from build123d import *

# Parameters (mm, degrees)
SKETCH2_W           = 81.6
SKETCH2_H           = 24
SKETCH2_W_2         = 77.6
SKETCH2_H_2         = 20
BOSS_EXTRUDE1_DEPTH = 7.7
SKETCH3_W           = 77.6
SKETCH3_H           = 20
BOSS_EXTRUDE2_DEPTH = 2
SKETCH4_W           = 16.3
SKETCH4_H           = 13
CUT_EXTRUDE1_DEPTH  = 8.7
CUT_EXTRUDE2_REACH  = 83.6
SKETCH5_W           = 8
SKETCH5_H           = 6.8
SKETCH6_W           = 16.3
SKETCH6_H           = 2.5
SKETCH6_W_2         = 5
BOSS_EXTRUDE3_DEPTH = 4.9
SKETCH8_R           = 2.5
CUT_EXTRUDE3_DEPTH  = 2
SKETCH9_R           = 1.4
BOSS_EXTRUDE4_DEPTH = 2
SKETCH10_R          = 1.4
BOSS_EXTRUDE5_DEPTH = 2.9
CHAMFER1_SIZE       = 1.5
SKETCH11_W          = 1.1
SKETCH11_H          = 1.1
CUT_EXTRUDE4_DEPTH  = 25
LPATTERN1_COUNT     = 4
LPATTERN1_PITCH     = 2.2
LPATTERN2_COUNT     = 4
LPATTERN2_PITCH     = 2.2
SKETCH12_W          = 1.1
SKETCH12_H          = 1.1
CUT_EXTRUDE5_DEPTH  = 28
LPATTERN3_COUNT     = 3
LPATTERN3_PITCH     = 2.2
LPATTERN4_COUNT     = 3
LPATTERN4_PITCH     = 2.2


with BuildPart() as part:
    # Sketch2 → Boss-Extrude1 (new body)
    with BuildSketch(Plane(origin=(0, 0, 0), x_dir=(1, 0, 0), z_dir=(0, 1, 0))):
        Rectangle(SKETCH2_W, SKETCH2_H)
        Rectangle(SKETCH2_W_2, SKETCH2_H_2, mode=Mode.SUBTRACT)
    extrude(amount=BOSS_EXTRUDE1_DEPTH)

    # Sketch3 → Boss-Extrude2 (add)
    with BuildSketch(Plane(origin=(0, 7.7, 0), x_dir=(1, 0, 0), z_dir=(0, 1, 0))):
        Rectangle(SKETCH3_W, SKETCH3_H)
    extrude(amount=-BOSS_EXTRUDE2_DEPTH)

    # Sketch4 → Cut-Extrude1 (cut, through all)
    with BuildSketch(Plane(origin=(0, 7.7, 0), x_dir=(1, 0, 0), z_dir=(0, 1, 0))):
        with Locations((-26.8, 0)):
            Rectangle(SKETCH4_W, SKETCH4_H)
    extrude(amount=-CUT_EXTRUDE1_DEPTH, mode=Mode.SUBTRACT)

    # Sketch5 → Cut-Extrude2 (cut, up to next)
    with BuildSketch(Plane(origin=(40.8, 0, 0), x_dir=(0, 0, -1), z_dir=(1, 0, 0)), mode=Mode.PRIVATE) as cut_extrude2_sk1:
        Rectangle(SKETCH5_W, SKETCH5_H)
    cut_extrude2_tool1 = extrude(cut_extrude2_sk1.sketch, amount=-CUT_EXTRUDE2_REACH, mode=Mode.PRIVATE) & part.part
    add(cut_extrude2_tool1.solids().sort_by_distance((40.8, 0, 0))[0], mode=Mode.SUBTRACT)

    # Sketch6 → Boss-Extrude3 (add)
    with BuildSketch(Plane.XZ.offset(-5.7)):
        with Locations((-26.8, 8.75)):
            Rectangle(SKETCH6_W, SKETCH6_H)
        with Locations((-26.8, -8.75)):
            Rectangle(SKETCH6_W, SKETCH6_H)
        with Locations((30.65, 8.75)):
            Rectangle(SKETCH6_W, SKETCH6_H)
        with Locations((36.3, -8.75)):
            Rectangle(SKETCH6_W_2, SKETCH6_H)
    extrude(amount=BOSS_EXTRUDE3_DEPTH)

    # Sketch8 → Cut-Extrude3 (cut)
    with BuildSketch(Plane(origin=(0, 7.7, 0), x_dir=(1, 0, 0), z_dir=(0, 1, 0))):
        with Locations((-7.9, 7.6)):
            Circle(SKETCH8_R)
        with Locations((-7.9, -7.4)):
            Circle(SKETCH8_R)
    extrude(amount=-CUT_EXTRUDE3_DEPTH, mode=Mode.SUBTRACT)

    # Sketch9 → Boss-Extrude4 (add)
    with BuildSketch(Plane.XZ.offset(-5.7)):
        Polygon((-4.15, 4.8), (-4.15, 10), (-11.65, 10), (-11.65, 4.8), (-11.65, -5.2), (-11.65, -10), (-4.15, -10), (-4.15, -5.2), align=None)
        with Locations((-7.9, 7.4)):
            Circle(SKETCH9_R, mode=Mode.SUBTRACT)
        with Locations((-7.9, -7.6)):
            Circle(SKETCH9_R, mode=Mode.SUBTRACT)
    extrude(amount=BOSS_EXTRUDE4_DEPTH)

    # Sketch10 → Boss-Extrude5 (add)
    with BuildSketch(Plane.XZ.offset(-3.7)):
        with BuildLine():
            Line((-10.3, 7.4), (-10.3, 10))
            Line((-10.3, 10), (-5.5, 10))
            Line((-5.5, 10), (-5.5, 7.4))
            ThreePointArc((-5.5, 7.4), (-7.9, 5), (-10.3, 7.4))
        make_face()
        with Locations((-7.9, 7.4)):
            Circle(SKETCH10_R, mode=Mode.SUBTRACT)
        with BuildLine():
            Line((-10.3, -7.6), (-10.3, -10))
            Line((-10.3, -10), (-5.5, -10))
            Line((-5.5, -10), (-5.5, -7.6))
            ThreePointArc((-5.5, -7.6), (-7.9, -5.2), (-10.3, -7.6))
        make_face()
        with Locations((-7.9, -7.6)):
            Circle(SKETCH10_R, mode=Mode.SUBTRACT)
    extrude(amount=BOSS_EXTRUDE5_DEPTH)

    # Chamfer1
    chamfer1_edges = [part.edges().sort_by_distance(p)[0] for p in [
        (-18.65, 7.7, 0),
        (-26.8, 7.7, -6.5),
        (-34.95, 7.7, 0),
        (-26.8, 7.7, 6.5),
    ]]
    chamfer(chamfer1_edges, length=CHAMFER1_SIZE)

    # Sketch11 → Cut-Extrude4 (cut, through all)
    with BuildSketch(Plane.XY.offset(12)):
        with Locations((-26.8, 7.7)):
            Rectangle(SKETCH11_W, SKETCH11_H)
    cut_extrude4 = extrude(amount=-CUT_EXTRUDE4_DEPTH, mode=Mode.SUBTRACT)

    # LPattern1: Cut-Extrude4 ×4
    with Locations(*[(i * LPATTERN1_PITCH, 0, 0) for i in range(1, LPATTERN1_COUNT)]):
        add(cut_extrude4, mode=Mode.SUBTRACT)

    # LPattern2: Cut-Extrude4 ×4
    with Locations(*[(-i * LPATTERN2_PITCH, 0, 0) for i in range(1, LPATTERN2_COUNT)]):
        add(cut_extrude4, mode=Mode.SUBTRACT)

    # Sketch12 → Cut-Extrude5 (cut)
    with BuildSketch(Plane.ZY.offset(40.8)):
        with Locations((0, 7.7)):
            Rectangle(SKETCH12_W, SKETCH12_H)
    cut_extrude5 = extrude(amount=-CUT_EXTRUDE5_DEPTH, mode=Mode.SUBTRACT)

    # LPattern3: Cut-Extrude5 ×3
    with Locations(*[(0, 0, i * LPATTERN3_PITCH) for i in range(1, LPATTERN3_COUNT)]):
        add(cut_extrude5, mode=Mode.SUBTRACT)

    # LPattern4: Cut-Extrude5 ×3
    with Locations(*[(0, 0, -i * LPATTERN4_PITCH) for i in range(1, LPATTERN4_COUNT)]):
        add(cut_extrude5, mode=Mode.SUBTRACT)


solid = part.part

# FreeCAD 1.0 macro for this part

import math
import FreeCAD as App
import Part
import Sketcher
Q = App.Units.Quantity


def edges_at(feature, points):
    """Names of the edges that pass closest to the given points."""
    edges = feature.Shape.Edges
    near = lambda p: min(range(len(edges)), key=lambda i: edges[i].distToShape(Part.Vertex(*p))[0])
    return sorted({f"Edge{near(p) + 1}" for p in points})


def add_polygon(sketch, points):
    """Adds a closed chain of lines whose ends are joined by coincident constraints."""
    first, n = sketch.GeometryCount, len(points)
    for a, b in zip(points, points[1:] + points[:1]):
        sketch.addGeometry(Part.LineSegment(App.Vector(*a, 0), App.Vector(*b, 0)), False)
    for i in range(n):
        sketch.addConstraint(Sketcher.Constraint("Coincident", first + i, 2, first + (i + 1) % n, 1))

doc = App.newDocument("Part")
params = doc.addObject("Spreadsheet::Sheet", "Params")
for row, (alias, value) in enumerate([
    ("sketch1_height", "24 mm"),
    ("sketch1_height2", "20 mm"),
    ("sketch1_width", "81.6 mm"),
    ("sketch1_width2", "77.6 mm"),
    ("pad1_length", "7.7 mm"),
    ("sketch2_height", "20 mm"),
    ("sketch2_width", "77.6 mm"),
    ("pad2_length", "2 mm"),
    ("sketch3_height", "13 mm"),
    ("sketch3_width", "16.3 mm"),
    ("sketch4_height", "8 mm"),
    ("sketch4_width", "6.8 mm"),
    ("sketch5_width", "5 mm"),
    ("sketch5_width2", "16.3 mm"),
    ("sketch5_height", "2.5 mm"),
    ("pad3_length", "4.9 mm"),
    ("sketch6_diameter", "5 mm"),
    ("pocket3_length", "2 mm"),
    ("sketch7_diameter", "2.8 mm"),
    ("sketch7_height", "20 mm"),
    ("sketch7_width", "7.5 mm"),
    ("pad4_length", "2 mm"),
    ("sketch8_diameter", "2.8 mm"),
    ("sketch8_radius", "2.4 mm"),
    ("sketch8_height", "2.6 mm"),
    ("sketch8_height2", "2.4 mm"),
    ("pad5_length", "2.9 mm"),
    ("chamfer_size", "1.5 mm"),
    ("sketch9_width", "1.1 mm"),
    ("linearpattern_pitch", "2.2 mm"),
    ("linearpattern2_pitch", "2.2 mm"),
    ("sketch10_width", "1.1 mm"),
    ("pocket5_length", "28 mm"),
    ("linearpattern3_pitch", "2.2 mm"),
    ("linearpattern4_pitch", "2.2 mm"),
], start=1):
    params.set(f"A{row}", alias)
    params.set(f"B{row}", "=" + value)
    params.setAlias(f"B{row}", alias)

body = doc.addObject("PartDesign::Body", "Body")

sketch1 = body.newObject("Sketcher::SketchObject", "Sketch")
sketch1.AttachmentSupport = (doc.getObject("XZ_Plane"), [""])
sketch1.MapMode = "FlatFace"
add_polygon(sketch1, [(-41, -12), (-41, 12), (41, 12), (41, -12)])
add_polygon(sketch1, [(39, 10), (-39, 10), (-39, -10), (39, -10)])
sketch1.addConstraint(Sketcher.Constraint("Vertical", 0))
sketch1.addConstraint(Sketcher.Constraint("Horizontal", 1))
sketch1.addConstraint(Sketcher.Constraint("Vertical", 2))
sketch1.addConstraint(Sketcher.Constraint("Horizontal", 3))
sketch1.addConstraint(Sketcher.Constraint("Horizontal", 4))
sketch1.addConstraint(Sketcher.Constraint("Vertical", 5))
sketch1.addConstraint(Sketcher.Constraint("Horizontal", 6))
sketch1.addConstraint(Sketcher.Constraint("Vertical", 7))
sketch1.addConstraint(Sketcher.Constraint("Symmetric", 0, 2, 2, 2, -1, 1))
sketch1.addConstraint(Sketcher.Constraint("Symmetric", 4, 2, 6, 2, -1, 1))
sketch1.addConstraint(Sketcher.Constraint("DistanceY", 0, 1, 0, 2, Q("24 mm")))
sketch1.addConstraint(Sketcher.Constraint("DistanceY", 5, 2, 5, 1, Q("20 mm")))
sketch1.addConstraint(Sketcher.Constraint("DistanceX", 1, 1, 1, 2, Q("81.6 mm")))
sketch1.addConstraint(Sketcher.Constraint("DistanceX", 4, 2, 4, 1, Q("77.6 mm")))
sketch1.setExpression("Constraints[18]", "Params.sketch1_height")
sketch1.setExpression("Constraints[19]", "Params.sketch1_height2")
sketch1.setExpression("Constraints[20]", "Params.sketch1_width")
sketch1.setExpression("Constraints[21]", "Params.sketch1_width2")
pad1 = body.newObject("PartDesign::Pad", "Pad")
pad1.Profile = sketch1
pad1.setExpression("Length", "Params.pad1_length")
pad1.Reversed = True

sketch2 = body.newObject("Sketcher::SketchObject", "Sketch001")
sketch2.AttachmentSupport = (doc.getObject("XZ_Plane"), [""])
sketch2.MapMode = "FlatFace"
sketch2.AttachmentOffset = App.Placement(App.Vector(0, 0, -7.7), App.Rotation())
add_polygon(sketch2, [(-39, -10), (-39, 10), (39, 10), (39, -10)])
sketch2.addConstraint(Sketcher.Constraint("Vertical", 0))
sketch2.addConstraint(Sketcher.Constraint("Horizontal", 1))
sketch2.addConstraint(Sketcher.Constraint("Vertical", 2))
sketch2.addConstraint(Sketcher.Constraint("Horizontal", 3))
sketch2.addConstraint(Sketcher.Constraint("Symmetric", 0, 2, 2, 2, -1, 1))
sketch2.addConstraint(Sketcher.Constraint("DistanceY", 0, 1, 0, 2, Q("20 mm")))
sketch2.addConstraint(Sketcher.Constraint("DistanceX", 1, 1, 1, 2, Q("77.6 mm")))
sketch2.setExpression("Constraints[9]", "Params.sketch2_height")
sketch2.setExpression("Constraints[10]", "Params.sketch2_width")
pad2 = body.newObject("PartDesign::Pad", "Pad001")
pad2.Profile = sketch2
pad2.setExpression("Length", "Params.pad2_length")

sketch3 = body.newObject("Sketcher::SketchObject", "Sketch002")
sketch3.AttachmentSupport = (doc.getObject("XZ_Plane"), [""])
sketch3.MapMode = "FlatFace"
sketch3.AttachmentOffset = App.Placement(App.Vector(0, 0, -7.7), App.Rotation())
add_polygon(sketch3, [(-35, -6), (-35, 6), (-19, 6), (-19, -6)])
sketch3.addConstraint(Sketcher.Constraint("Vertical", 0))
sketch3.addConstraint(Sketcher.Constraint("Horizontal", 1))
sketch3.addConstraint(Sketcher.Constraint("Vertical", 2))
sketch3.addConstraint(Sketcher.Constraint("Horizontal", 3))
sketch3.addConstraint(Sketcher.Constraint("DistanceY", 0, 1, 0, 2, Q("13 mm")))
sketch3.addConstraint(Sketcher.Constraint("DistanceX", 1, 1, 1, 2, Q("16.3 mm")))
sketch3.addConstraint(Sketcher.Constraint("DistanceY", -1, 1, 0, 2, Q("6.5 mm")))
sketch3.addConstraint(Sketcher.Constraint("DistanceX", 0, 2, -1, 1, Q("34.95 mm")))
sketch3.setExpression("Constraints[8]", "Params.sketch3_height")
sketch3.setExpression("Constraints[9]", "Params.sketch3_width")
pocket1 = body.newObject("PartDesign::Pocket", "Pocket")
pocket1.Profile = sketch3
pocket1.Type = "ThroughAll"
pocket1.Reversed = True

sketch4 = body.newObject("Sketcher::SketchObject", "Sketch003")
sketch4.AttachmentSupport = (doc.getObject("YZ_Plane"), [""])
sketch4.MapMode = "FlatFace"
sketch4.AttachmentOffset = App.Placement(App.Vector(0, 0, 40.8), App.Rotation())
add_polygon(sketch4, [(3, 4), (-3, 4), (-3, -4), (3, -4)])
sketch4.addConstraint(Sketcher.Constraint("Horizontal", 0))
sketch4.addConstraint(Sketcher.Constraint("Vertical", 1))
sketch4.addConstraint(Sketcher.Constraint("Horizontal", 2))
sketch4.addConstraint(Sketcher.Constraint("Vertical", 3))
sketch4.addConstraint(Sketcher.Constraint("Symmetric", 0, 2, 2, 2, -1, 1))
sketch4.addConstraint(Sketcher.Constraint("DistanceY", 1, 2, 1, 1, Q("8 mm")))
sketch4.addConstraint(Sketcher.Constraint("DistanceX", 0, 2, 0, 1, Q("6.8 mm")))
sketch4.setExpression("Constraints[9]", "Params.sketch4_height")
sketch4.setExpression("Constraints[10]", "Params.sketch4_width")
pocket2 = body.newObject("PartDesign::Pocket", "Pocket001")
pocket2.Profile = sketch4
pocket2.Type = "UpToFirst"

sketch5 = body.newObject("Sketcher::SketchObject", "Sketch004")
sketch5.AttachmentSupport = (doc.getObject("XZ_Plane"), [""])
sketch5.MapMode = "FlatFace"
sketch5.AttachmentOffset = App.Placement(App.Vector(0, 0, -5.7), App.Rotation())
add_polygon(sketch5, [(-35, 10), (-35, 7.5), (-18.6, 7.5), (-18.6, 10)])
add_polygon(sketch5, [(-35, -7.5), (-35, -10), (-18.6, -10), (-18.6, -7.5)])
add_polygon(sketch5, [(22.5, 10), (22.5, 7.5), (38.8, 7.5), (38.8, 10)])
add_polygon(sketch5, [(33.8, -7.5), (33.8, -10), (38.8, -10), (38.8, -7.5)])
sketch5.addConstraint(Sketcher.Constraint("Vertical", 0))
sketch5.addConstraint(Sketcher.Constraint("Horizontal", 1))
sketch5.addConstraint(Sketcher.Constraint("Vertical", 2))
sketch5.addConstraint(Sketcher.Constraint("Horizontal", 3))
sketch5.addConstraint(Sketcher.Constraint("Vertical", 4))
sketch5.addConstraint(Sketcher.Constraint("Horizontal", 5))
sketch5.addConstraint(Sketcher.Constraint("Vertical", 6))
sketch5.addConstraint(Sketcher.Constraint("Horizontal", 7))
sketch5.addConstraint(Sketcher.Constraint("Vertical", 8))
sketch5.addConstraint(Sketcher.Constraint("Horizontal", 9))
sketch5.addConstraint(Sketcher.Constraint("Vertical", 10))
sketch5.addConstraint(Sketcher.Constraint("Horizontal", 11))
sketch5.addConstraint(Sketcher.Constraint("Vertical", 12))
sketch5.addConstraint(Sketcher.Constraint("Horizontal", 13))
sketch5.addConstraint(Sketcher.Constraint("Vertical", 14))
sketch5.addConstraint(Sketcher.Constraint("Horizontal", 15))
sketch5.addConstraint(Sketcher.Constraint("Symmetric", 3, 2, 4, 2, -1))
sketch5.addConstraint(Sketcher.Constraint("Symmetric", 1, 2, 6, 2, -1))
sketch5.addConstraint(Sketcher.Constraint("Symmetric", 10, 2, 13, 2, -1))
sketch5.addConstraint(Sketcher.Constraint("Horizontal", 1, 2, 8, 2))
sketch5.addConstraint(Sketcher.Constraint("Horizontal", 3, 2, 10, 2))
sketch5.addConstraint(Sketcher.Constraint("Horizontal", 7, 2, 14, 2))
sketch5.addConstraint(Sketcher.Constraint("Equal", 7, 9))
sketch5.addConstraint(Sketcher.Constraint("DistanceX", 13, 1, 13, 2, Q("5 mm")))
sketch5.addConstraint(Sketcher.Constraint("DistanceX", 1, 1, 1, 2, Q("16.3 mm")))
sketch5.addConstraint(Sketcher.Constraint("DistanceY", 0, 2, 0, 1, Q("2.5 mm")))
sketch5.addConstraint(Sketcher.Constraint("DistanceY", -1, 1, 2, 2, Q("10 mm")))
sketch5.addConstraint(Sketcher.Constraint("DistanceX", -1, 1, 8, 2, Q("22.5 mm")))
sketch5.addConstraint(Sketcher.Constraint("DistanceX", 0, 2, -1, 1, Q("34.95 mm")))
sketch5.setExpression("Constraints[39]", "Params.sketch5_width")
sketch5.setExpression("Constraints[40]", "Params.sketch5_width2")
sketch5.setExpression("Constraints[41]", "Params.sketch5_height")
pad3 = body.newObject("PartDesign::Pad", "Pad002")
pad3.Profile = sketch5
pad3.setExpression("Length", "Params.pad3_length")

sketch6 = body.newObject("Sketcher::SketchObject", "Sketch005")
sketch6.AttachmentSupport = (doc.getObject("XZ_Plane"), [""])
sketch6.MapMode = "FlatFace"
sketch6.AttachmentOffset = App.Placement(App.Vector(0, 0, -7.7), App.Rotation())
sketch6.addGeometry(Part.Circle(App.Vector(-7.9, -7.6, 0), App.Vector(0, 0, 1), 2.5), False)
sketch6.addGeometry(Part.Circle(App.Vector(-7.9, 7.4, 0), App.Vector(0, 0, 1), 2.5), False)
sketch6.addConstraint(Sketcher.Constraint("Equal", 0, 1))
sketch6.addConstraint(Sketcher.Constraint("Vertical", 0, 3, 1, 3))
sketch6.addConstraint(Sketcher.Constraint("Diameter", 0, Q("5 mm")))
sketch6.addConstraint(Sketcher.Constraint("DistanceY", 0, 3, 1, 3, Q("15 mm")))
sketch6.addConstraint(Sketcher.Constraint("DistanceX", 0, 3, -1, 1, Q("7.9 mm")))
sketch6.addConstraint(Sketcher.Constraint("DistanceY", 0, 3, -1, 1, Q("7.6 mm")))
sketch6.setExpression("Constraints[2]", "Params.sketch6_diameter")
pocket3 = body.newObject("PartDesign::Pocket", "Pocket002")
pocket3.Profile = sketch6
pocket3.setExpression("Length", "Params.pocket3_length")
pocket3.Reversed = True

sketch7 = body.newObject("Sketcher::SketchObject", "Sketch006")
sketch7.AttachmentSupport = (doc.getObject("XZ_Plane"), [""])
sketch7.MapMode = "FlatFace"
sketch7.AttachmentOffset = App.Placement(App.Vector(0, 0, -5.7), App.Rotation())
add_polygon(sketch7, [(-4.2, 10), (-11.7, 10), (-11.7, -10), (-4.2, -10)])
sketch7.addGeometry(Part.Circle(App.Vector(-7.9, -7.6, 0), App.Vector(0, 0, 1), 1.4), False)
sketch7.addGeometry(Part.Circle(App.Vector(-7.9, 7.4, 0), App.Vector(0, 0, 1), 1.4), False)
sketch7.addConstraint(Sketcher.Constraint("Horizontal", 0))
sketch7.addConstraint(Sketcher.Constraint("Vertical", 1))
sketch7.addConstraint(Sketcher.Constraint("Horizontal", 2))
sketch7.addConstraint(Sketcher.Constraint("Vertical", 3))
sketch7.addConstraint(Sketcher.Constraint("Equal", 4, 5))
sketch7.addConstraint(Sketcher.Constraint("Vertical", 4, 3, 5, 3))
sketch7.addConstraint(Sketcher.Constraint("Diameter", 4, Q("2.8 mm")))
sketch7.addConstraint(Sketcher.Constraint("DistanceY", 1, 2, 1, 1, Q("20 mm")))
sketch7.addConstraint(Sketcher.Constraint("DistanceX", 0, 2, 0, 1, Q("7.5 mm")))
sketch7.addConstraint(Sketcher.Constraint("DistanceY", -1, 1, 0, 2, Q("10 mm")))
sketch7.addConstraint(Sketcher.Constraint("DistanceY", 4, 3, 5, 3, Q("15 mm")))
sketch7.addConstraint(Sketcher.Constraint("DistanceX", 4, 3, -1, 1, Q("7.9 mm")))
sketch7.addConstraint(Sketcher.Constraint("DistanceY", 4, 3, -1, 1, Q("7.6 mm")))
sketch7.addConstraint(Sketcher.Constraint("DistanceX", 0, 2, -1, 1, Q("11.65 mm")))
sketch7.setExpression("Constraints[10]", "Params.sketch7_diameter")
sketch7.setExpression("Constraints[11]", "Params.sketch7_height")
sketch7.setExpression("Constraints[12]", "Params.sketch7_width")
pad4 = body.newObject("PartDesign::Pad", "Pad003")
pad4.Profile = sketch7
pad4.setExpression("Length", "Params.pad4_length")

sketch8 = body.newObject("Sketcher::SketchObject", "Sketch007")
sketch8.AttachmentSupport = (doc.getObject("XZ_Plane"), [""])
sketch8.MapMode = "FlatFace"
sketch8.AttachmentOffset = App.Placement(App.Vector(0, 0, -3.7), App.Rotation())
sketch8.addGeometry(Part.LineSegment(App.Vector(-10.3, 10, 0), App.Vector(-10.3, 7.4, 0)), False)
sketch8.addGeometry(Part.ArcOfCircle(Part.Circle(App.Vector(-7.9, 7.4, 0), App.Vector(0, 0, 1), 2.4), math.radians(180), math.radians(360)), False)
sketch8.addGeometry(Part.LineSegment(App.Vector(-5.5, 7.4, 0), App.Vector(-5.5, 10, 0)), False)
sketch8.addGeometry(Part.LineSegment(App.Vector(-5.5, 10, 0), App.Vector(-10.3, 10, 0)), False)
sketch8.addGeometry(Part.Circle(App.Vector(-7.9, 7.4, 0), App.Vector(0, 0, 1), 1.4), False)
sketch8.addGeometry(Part.LineSegment(App.Vector(-10.3, -7.6, 0), App.Vector(-10.3, -10, 0)), False)
sketch8.addGeometry(Part.LineSegment(App.Vector(-10.3, -10, 0), App.Vector(-5.5, -10, 0)), False)
sketch8.addGeometry(Part.LineSegment(App.Vector(-5.5, -10, 0), App.Vector(-5.5, -7.6, 0)), False)
sketch8.addGeometry(Part.ArcOfCircle(Part.Circle(App.Vector(-7.9, -7.6, 0), App.Vector(0, 0, 1), 2.4), math.radians(0), math.radians(180)), False)
sketch8.addGeometry(Part.Circle(App.Vector(-7.9, -7.6, 0), App.Vector(0, 0, 1), 1.4), False)
sketch8.addConstraint(Sketcher.Constraint("Tangent", 0, 2, 1, 1))
sketch8.addConstraint(Sketcher.Constraint("Tangent", 1, 2, 2, 1))
sketch8.addConstraint(Sketcher.Constraint("Coincident", 2, 2, 3, 1))
sketch8.addConstraint(Sketcher.Constraint("Coincident", 3, 2, 0, 1))
sketch8.addConstraint(Sketcher.Constraint("Coincident", 5, 2, 6, 1))
sketch8.addConstraint(Sketcher.Constraint("Coincident", 6, 2, 7, 1))
sketch8.addConstraint(Sketcher.Constraint("Tangent", 7, 2, 8, 1))
sketch8.addConstraint(Sketcher.Constraint("Tangent", 8, 2, 5, 1))
sketch8.addConstraint(Sketcher.Constraint("Vertical", 0))
sketch8.addConstraint(Sketcher.Constraint("Vertical", 2))
sketch8.addConstraint(Sketcher.Constraint("Horizontal", 3))
sketch8.addConstraint(Sketcher.Constraint("Vertical", 5))
sketch8.addConstraint(Sketcher.Constraint("Horizontal", 6))
sketch8.addConstraint(Sketcher.Constraint("Vertical", 7))
sketch8.addConstraint(Sketcher.Constraint("Coincident", 4, 3, 1, 3))
sketch8.addConstraint(Sketcher.Constraint("Coincident", 9, 3, 8, 3))
sketch8.addConstraint(Sketcher.Constraint("Equal", 1, 8))
sketch8.addConstraint(Sketcher.Constraint("Equal", 4, 9))
sketch8.addConstraint(Sketcher.Constraint("Symmetric", 3, 2, 5, 2, -1))
sketch8.addConstraint(Sketcher.Constraint("Diameter", 4, Q("2.8 mm")))
sketch8.addConstraint(Sketcher.Constraint("Radius", 1, Q("2.4 mm")))
sketch8.addConstraint(Sketcher.Constraint("DistanceY", 0, 2, 0, 1, Q("2.6 mm")))
sketch8.addConstraint(Sketcher.Constraint("DistanceY", 5, 2, 5, 1, Q("2.4 mm")))
sketch8.addConstraint(Sketcher.Constraint("DistanceY", -1, 1, 2, 2, Q("10 mm")))
sketch8.addConstraint(Sketcher.Constraint("DistanceX", 1, 3, -1, 1, Q("7.9 mm")))
sketch8.setExpression("Constraints[19]", "Params.sketch8_diameter")
sketch8.setExpression("Constraints[20]", "Params.sketch8_radius")
sketch8.setExpression("Constraints[21]", "Params.sketch8_height")
sketch8.setExpression("Constraints[22]", "Params.sketch8_height2")
pad5 = body.newObject("PartDesign::Pad", "Pad004")
pad5.Profile = sketch8
pad5.setExpression("Length", "Params.pad5_length")
doc.recompute()

chamfer = body.newObject("PartDesign::Chamfer", "Chamfer")
chamfer.Base = (pad5, edges_at(pad5, [
    (-18.65, 7.7, 0),
    (-26.8, 7.7, -6.5),
    (-34.95, 7.7, 0),
    (-26.8, 7.7, 6.5),
]))
chamfer.setExpression("Size", "Params.chamfer_size")

sketch9 = body.newObject("Sketcher::SketchObject", "Sketch008")
sketch9.AttachmentSupport = (doc.getObject("XY_Plane"), [""])
sketch9.MapMode = "FlatFace"
sketch9.AttachmentOffset = App.Placement(App.Vector(0, 0, 12), App.Rotation())
add_polygon(sketch9, [(-27.4, 8.2), (-27.4, 7.2), (-26.2, 7.2), (-26.2, 8.2)])
sketch9.addConstraint(Sketcher.Constraint("Vertical", 0))
sketch9.addConstraint(Sketcher.Constraint("Horizontal", 1))
sketch9.addConstraint(Sketcher.Constraint("Vertical", 2))
sketch9.addConstraint(Sketcher.Constraint("Horizontal", 3))
sketch9.addConstraint(Sketcher.Constraint("Equal", 3, 0))
sketch9.addConstraint(Sketcher.Constraint("DistanceX", 1, 1, 1, 2, Q("1.1 mm")))
sketch9.addConstraint(Sketcher.Constraint("DistanceX", 0, 2, -1, 1, Q("27.35 mm")))
sketch9.addConstraint(Sketcher.Constraint("DistanceY", -1, 1, 0, 2, Q("7.15 mm")))
sketch9.setExpression("Constraints[9]", "Params.sketch9_width")
pocket4 = body.newObject("PartDesign::Pocket", "Pocket003")
pocket4.Profile = sketch9
pocket4.Type = "ThroughAll"
doc.recompute()

linearpattern = body.newObject("PartDesign::LinearPattern", "LinearPattern")
linearpattern.Originals = [pocket4]
linearpattern.Direction = (doc.getObject("X_Axis"), [""])
linearpattern.Mode = "offset"
linearpattern.setExpression("Offset", "Params.linearpattern_pitch")
linearpattern.Occurrences = 4
body.Tip = linearpattern
doc.recompute()

linearpattern2 = body.newObject("PartDesign::LinearPattern", "LinearPattern001")
linearpattern2.Originals = [pocket4]
linearpattern2.Direction = (doc.getObject("X_Axis"), [""])
linearpattern2.Mode = "offset"
linearpattern2.setExpression("Offset", "Params.linearpattern2_pitch")
linearpattern2.Occurrences = 4
linearpattern2.Reversed = True
body.Tip = linearpattern2

sketch10 = body.newObject("Sketcher::SketchObject", "Sketch009")
sketch10.AttachmentSupport = (doc.getObject("YZ_Plane"), [""])
sketch10.MapMode = "FlatFace"
sketch10.AttachmentOffset = App.Placement(App.Vector(0, 0, -40.8), App.Rotation())
add_polygon(sketch10, [(8.2, -0.6), (7.2, -0.6), (7.2, 0.6), (8.2, 0.6)])
sketch10.addConstraint(Sketcher.Constraint("Horizontal", 0))
sketch10.addConstraint(Sketcher.Constraint("Vertical", 1))
sketch10.addConstraint(Sketcher.Constraint("Horizontal", 2))
sketch10.addConstraint(Sketcher.Constraint("Vertical", 3))
sketch10.addConstraint(Sketcher.Constraint("Equal", 2, 1))
sketch10.addConstraint(Sketcher.Constraint("DistanceX", 0, 2, 0, 1, Q("1.1 mm")))
sketch10.addConstraint(Sketcher.Constraint("DistanceX", -1, 1, 0, 2, Q("7.15 mm")))
sketch10.addConstraint(Sketcher.Constraint("DistanceY", 0, 2, -1, 1, Q("0.55 mm")))
sketch10.setExpression("Constraints[9]", "Params.sketch10_width")
pocket5 = body.newObject("PartDesign::Pocket", "Pocket004")
pocket5.Profile = sketch10
pocket5.setExpression("Length", "Params.pocket5_length")
pocket5.Reversed = True
doc.recompute()

linearpattern3 = body.newObject("PartDesign::LinearPattern", "LinearPattern002")
linearpattern3.Originals = [pocket5]
linearpattern3.Direction = (doc.getObject("Z_Axis"), [""])
linearpattern3.Mode = "offset"
linearpattern3.setExpression("Offset", "Params.linearpattern3_pitch")
linearpattern3.Occurrences = 3
body.Tip = linearpattern3
doc.recompute()

linearpattern4 = body.newObject("PartDesign::LinearPattern", "LinearPattern003")
linearpattern4.Originals = [pocket5]
linearpattern4.Direction = (doc.getObject("Z_Axis"), [""])
linearpattern4.Mode = "offset"
linearpattern4.setExpression("Offset", "Params.linearpattern4_pitch")
linearpattern4.Occurrences = 3
linearpattern4.Reversed = True
body.Tip = linearpattern4

doc.recompute()
